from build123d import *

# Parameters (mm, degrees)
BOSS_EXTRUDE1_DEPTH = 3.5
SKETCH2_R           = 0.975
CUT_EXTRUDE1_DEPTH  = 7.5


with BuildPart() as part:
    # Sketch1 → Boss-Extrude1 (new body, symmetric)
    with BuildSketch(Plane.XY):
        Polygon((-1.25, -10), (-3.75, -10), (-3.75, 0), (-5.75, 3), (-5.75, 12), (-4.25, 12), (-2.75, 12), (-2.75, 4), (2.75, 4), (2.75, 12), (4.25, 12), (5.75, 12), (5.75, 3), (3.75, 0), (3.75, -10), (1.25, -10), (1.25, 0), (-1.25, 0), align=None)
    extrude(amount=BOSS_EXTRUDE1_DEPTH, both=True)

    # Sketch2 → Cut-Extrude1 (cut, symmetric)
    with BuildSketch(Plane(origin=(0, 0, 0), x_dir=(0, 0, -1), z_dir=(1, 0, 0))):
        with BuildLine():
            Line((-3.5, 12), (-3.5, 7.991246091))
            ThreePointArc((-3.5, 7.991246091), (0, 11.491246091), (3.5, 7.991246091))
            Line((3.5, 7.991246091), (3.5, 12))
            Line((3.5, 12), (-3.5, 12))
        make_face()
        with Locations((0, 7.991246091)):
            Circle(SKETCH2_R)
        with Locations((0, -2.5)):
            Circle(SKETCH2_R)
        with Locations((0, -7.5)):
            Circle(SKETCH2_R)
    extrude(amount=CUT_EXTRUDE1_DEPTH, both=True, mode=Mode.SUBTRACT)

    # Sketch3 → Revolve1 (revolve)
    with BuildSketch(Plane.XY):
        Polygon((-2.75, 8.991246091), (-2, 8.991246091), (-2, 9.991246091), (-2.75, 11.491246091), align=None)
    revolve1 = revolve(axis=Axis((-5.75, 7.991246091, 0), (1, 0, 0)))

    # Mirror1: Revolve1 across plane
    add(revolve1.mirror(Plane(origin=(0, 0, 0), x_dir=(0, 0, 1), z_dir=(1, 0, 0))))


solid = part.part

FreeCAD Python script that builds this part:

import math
import FreeCAD as App
import Part
import Sketcher

V = App.Vector


def add_polygon(sketch, points):
    """Adds a closed chain of lines whose ends are joined by coincident constraints."""
    first, n = sketch.GeometryCount, len(points)
    for a, b in zip(points, points[1:] + points[:1]):
        sketch.addGeometry(Part.LineSegment(App.Vector(*a, 0), App.Vector(*b, 0)), False)
    for i in range(n):
        sketch.addConstraint(Sketcher.Constraint("Coincident", first + i, 2, first + (i + 1) % n, 1))

doc = App.newDocument("Part")
body = doc.addObject("PartDesign::Body", "Body")

sketch1 = doc.addObject("Sketcher::SketchObject", "Sketch")
body.addObject(sketch1)
sketch1.AttachmentSupport = (doc.XY_Plane, [""])
sketch1.MapMode = "FlatFace"
add_polygon(sketch1, [(-3.8, -10), (-1.2, -10), (-1.2, 0), (1.2, 0), (1.2, -10), (3.8, -10), (3.8, 0), (5.8, 3), (5.8, 12), (2.8, 12), (2.8, 4), (-2.8, 4), (-2.8, 12), (-5.8, 12), (-5.8, 3), (-3.8, 0)])
sketch1.addConstraint([
    Sketcher.Constraint("Horizontal", 0),
    Sketcher.Constraint("Vertical", 1),
    Sketcher.Constraint("Horizontal", 2),
    Sketcher.Constraint("Vertical", 3),
    Sketcher.Constraint("Horizontal", 4),
    Sketcher.Constraint("Vertical", 5),
    Sketcher.Constraint("Vertical", 7),
    Sketcher.Constraint("Horizontal", 8),
    Sketcher.Constraint("Vertical", 9),
    Sketcher.Constraint("Horizontal", 10),
    Sketcher.Constraint("Vertical", 11),
    Sketcher.Constraint("Horizontal", 12),
    Sketcher.Constraint("Vertical", 13),
    Sketcher.Constraint("Vertical", 15),
    Sketcher.Constraint("Symmetric", 1, 2, 2, 2, -1, 1),
    Sketcher.Constraint("Symmetric", 5, 2, 14, 2, -1, 1),
    Sketcher.Constraint("Symmetric", 8, 2, 11, 2, -2),
    Sketcher.Constraint("Symmetric", 6, 2, 13, 2, -2),
    Sketcher.Constraint("PointOnObject", 5, 2, -1),
    Sketcher.Constraint("Horizontal", 0, 2, 3, 2),
    Sketcher.Constraint("Equal", 0, 2),
    Sketcher.Constraint("DistanceX", 8, 2, 8, 1, 3.0),
    Sketcher.Constraint("DistanceY", 1, 1, 1, 2, 10.0),
    Sketcher.Constraint("DistanceY", 7, 1, 7, 2, 9.0),
    Sketcher.Constraint("DistanceY", 9, 2, 9, 1, 8.0),
    Sketcher.Constraint("DistanceX", 0, 1, 0, 2, 2.5),
    Sketcher.Constraint("DistanceX", 10, 2, 10, 1, 5.5),
    Sketcher.Constraint("DistanceY", -1, 1, 6, 2, 3.0),
])
pad1 = doc.addObject("PartDesign::Pad", "Pad")
body.addObject(pad1)
pad1.Profile = sketch1
pad1.Length = 7
pad1.Midplane = True

sketch2 = doc.addObject("Sketcher::SketchObject", "Sketch001")
body.addObject(sketch2)
sketch2.AttachmentSupport = (doc.YZ_Plane, [""])
sketch2.MapMode = "FlatFace"
sketch2.addGeometry([
    Part.LineSegment(V(12, 3.5, 0), V(8, 3.5, 0)),
    Part.ArcOfCircle(Part.Circle(V(8, 0, 0), V(0, 0, 1), 3.5), math.radians(-90), math.radians(90)),
    Part.LineSegment(V(8, -3.5, 0), V(12, -3.5, 0)),
    Part.LineSegment(V(12, -3.5, 0), V(12, 3.5, 0)),
    Part.Circle(V(8, 0, 0), V(0, 0, 1), 1),
    Part.Circle(V(-2.5, 0, 0), V(0, 0, 1), 1),
    Part.Circle(V(-7.5, 0, 0), V(0, 0, 1), 1),
], False)
sketch2.addConstraint([
    Sketcher.Constraint("Tangent", 0, 2, 1, 2),
    Sketcher.Constraint("Tangent", 1, 1, 2, 1),
    Sketcher.Constraint("Coincident", 2, 2, 3, 1),
    Sketcher.Constraint("Coincident", 3, 2, 0, 1),
    Sketcher.Constraint("Horizontal", 0),
    Sketcher.Constraint("Horizontal", 2),
    Sketcher.Constraint("Vertical", 3),
    Sketcher.Constraint("Coincident", 4, 3, 1, 3),
    Sketcher.Constraint("Equal", 4, 5),
    Sketcher.Constraint("Equal", 5, 6),
    Sketcher.Constraint("PointOnObject", 1, 3, -1),
    Sketcher.Constraint("PointOnObject", 5, 3, -1),
    Sketcher.Constraint("PointOnObject", 6, 3, -1),
    Sketcher.Constraint("Radius", 1, 3.5),
    Sketcher.Constraint("Diameter", 4, 1.95),
    Sketcher.Constraint("DistanceX", -1, 1, 2, 2, 12.0),
    Sketcher.Constraint("DistanceX", 6, 3, 5, 3, 5.0),
    Sketcher.Constraint("DistanceX", 5, 3, -1, 1, 2.5),
    Sketcher.Constraint("DistanceX", 0, 2, 0, 1, 4.008754),
])
pocket1 = doc.addObject("PartDesign::Pocket", "Pocket")
body.addObject(pocket1)
pocket1.Profile = sketch2
pocket1.Length = 15
pocket1.Midplane = True

sketch3 = doc.addObject("Sketcher::SketchObject", "Sketch002")
body.addObject(sketch3)
sketch3.AttachmentSupport = (doc.XY_Plane, [""])
sketch3.MapMode = "FlatFace"
add_polygon(sketch3, [(-2.8, 9), (-2, 9), (-2, 10), (-2.8, 11.5)])
sketch3.addGeometry(Part.LineSegment(V(-2.8, 8, 0), V(-2, 8, 0)), True)
sketch3.addConstraint([
    Sketcher.Constraint("Horizontal", 0),
    Sketcher.Constraint("Vertical", 1),
    Sketcher.Constraint("Vertical", 3),
    Sketcher.Constraint("Horizontal", 4),
    Sketcher.Constraint("Vertical", 3, 2, 4, 1),
    Sketcher.Constraint("Vertical", 1, 2, 4, 2),
    Sketcher.Constraint("DistanceY", 1, 1, 1, 2, 1.0),
    Sketcher.Constraint("DistanceY", 3, 2, 3, 1, 2.5),
    Sketcher.Constraint("DistanceX", 0, 2, -1, 1, 2.0),
    Sketcher.Constraint("DistanceY", 4, 1, 3, 2, 1.0),
    Sketcher.Constraint("DistanceX", 0, 1, 0, 2, 0.75),
    Sketcher.Constraint("DistanceY", -1, 1, 0, 2, 8.991246),
])
revolution = doc.addObject("PartDesign::Revolution", "Revolution")
body.addObject(revolution)
revolution.Profile = sketch3
revolution.ReferenceAxis = (sketch3, ["Axis0"])
revolution.Angle = 360
doc.recompute()

mirrored = doc.addObject("PartDesign::Mirrored", "Mirrored")
body.addObject(mirrored)
mirrored.Originals = [revolution]
mirrored.MirrorPlane = (doc.YZ_Plane, [""])
body.Tip = mirrored

doc.recompute()
